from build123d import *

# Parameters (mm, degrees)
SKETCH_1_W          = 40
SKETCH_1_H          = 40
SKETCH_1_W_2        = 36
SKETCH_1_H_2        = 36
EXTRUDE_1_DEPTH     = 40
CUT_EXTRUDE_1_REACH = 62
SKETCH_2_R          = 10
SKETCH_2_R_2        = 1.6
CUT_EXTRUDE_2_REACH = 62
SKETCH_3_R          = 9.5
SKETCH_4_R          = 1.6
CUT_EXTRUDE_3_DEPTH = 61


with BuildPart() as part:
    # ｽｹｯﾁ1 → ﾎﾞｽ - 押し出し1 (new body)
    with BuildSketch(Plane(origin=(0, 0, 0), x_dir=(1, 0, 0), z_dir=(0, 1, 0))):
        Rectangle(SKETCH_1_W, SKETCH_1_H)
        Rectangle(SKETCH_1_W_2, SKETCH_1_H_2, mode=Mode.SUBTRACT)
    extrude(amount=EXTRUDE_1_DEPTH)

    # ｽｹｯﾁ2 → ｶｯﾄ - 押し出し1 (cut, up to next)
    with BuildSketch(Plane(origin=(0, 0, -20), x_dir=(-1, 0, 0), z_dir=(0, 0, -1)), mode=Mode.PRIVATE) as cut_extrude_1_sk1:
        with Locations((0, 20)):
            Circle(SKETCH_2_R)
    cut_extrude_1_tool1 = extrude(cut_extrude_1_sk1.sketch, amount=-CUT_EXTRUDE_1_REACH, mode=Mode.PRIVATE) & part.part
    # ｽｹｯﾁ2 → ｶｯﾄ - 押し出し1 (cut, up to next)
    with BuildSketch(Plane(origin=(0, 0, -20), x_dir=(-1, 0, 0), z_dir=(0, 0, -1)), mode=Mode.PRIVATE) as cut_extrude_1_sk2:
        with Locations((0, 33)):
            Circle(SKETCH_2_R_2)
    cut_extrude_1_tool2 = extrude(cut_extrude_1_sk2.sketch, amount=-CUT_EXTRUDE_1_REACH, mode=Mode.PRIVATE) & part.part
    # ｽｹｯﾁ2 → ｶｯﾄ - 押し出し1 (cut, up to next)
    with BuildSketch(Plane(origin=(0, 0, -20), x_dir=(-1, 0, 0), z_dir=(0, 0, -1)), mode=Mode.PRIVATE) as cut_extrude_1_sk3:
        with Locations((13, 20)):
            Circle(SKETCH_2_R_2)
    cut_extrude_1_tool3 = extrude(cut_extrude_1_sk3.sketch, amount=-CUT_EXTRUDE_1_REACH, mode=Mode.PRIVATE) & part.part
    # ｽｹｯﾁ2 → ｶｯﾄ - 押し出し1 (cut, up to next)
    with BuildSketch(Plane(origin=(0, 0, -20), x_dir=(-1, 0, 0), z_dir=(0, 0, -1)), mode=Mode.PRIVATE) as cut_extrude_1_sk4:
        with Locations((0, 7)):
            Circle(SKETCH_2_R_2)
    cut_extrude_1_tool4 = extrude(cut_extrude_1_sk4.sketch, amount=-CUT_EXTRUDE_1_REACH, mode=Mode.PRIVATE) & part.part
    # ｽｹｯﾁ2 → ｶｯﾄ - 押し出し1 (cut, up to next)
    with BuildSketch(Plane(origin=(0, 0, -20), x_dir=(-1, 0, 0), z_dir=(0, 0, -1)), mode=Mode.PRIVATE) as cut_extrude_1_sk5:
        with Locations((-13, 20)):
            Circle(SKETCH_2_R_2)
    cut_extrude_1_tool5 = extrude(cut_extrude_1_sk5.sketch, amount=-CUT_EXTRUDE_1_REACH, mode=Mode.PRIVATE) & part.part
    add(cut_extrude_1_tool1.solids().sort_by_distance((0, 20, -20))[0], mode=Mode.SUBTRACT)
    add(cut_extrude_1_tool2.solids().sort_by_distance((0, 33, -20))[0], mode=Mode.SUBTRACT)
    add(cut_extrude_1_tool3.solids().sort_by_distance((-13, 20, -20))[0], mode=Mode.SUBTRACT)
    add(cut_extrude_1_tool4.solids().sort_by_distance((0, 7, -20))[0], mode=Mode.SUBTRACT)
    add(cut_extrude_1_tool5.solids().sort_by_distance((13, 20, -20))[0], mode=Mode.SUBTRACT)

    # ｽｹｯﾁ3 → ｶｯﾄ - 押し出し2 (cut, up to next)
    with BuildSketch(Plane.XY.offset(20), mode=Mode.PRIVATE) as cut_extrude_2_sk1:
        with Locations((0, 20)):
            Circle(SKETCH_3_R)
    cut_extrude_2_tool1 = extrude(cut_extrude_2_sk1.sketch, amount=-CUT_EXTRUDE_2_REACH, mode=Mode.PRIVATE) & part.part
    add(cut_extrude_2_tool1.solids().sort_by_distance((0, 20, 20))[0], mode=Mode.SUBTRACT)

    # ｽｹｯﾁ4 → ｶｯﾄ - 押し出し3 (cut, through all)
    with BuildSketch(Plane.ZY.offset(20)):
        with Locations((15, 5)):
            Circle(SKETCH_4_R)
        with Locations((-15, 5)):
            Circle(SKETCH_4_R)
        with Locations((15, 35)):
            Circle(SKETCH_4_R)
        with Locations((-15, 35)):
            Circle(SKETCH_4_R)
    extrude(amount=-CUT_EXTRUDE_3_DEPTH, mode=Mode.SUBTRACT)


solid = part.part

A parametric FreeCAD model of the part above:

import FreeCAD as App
import Part
import Sketcher
Q = App.Units.Quantity


def add_polygon(sketch, points):
    """Adds a closed chain of lines whose ends are joined by coincident constraints."""
    first, n = sketch.GeometryCount, len(points)
    for a, b in zip(points, points[1:] + points[:1]):
        sketch.addGeometry(Part.LineSegment(App.Vector(*a, 0), App.Vector(*b, 0)), False)
    for i in range(n):
        sketch.addConstraint(Sketcher.Constraint("Coincident", first + i, 2, first + (i + 1) % n, 1))

doc = App.newDocument("Part")
body = doc.addObject("PartDesign::Body", "Body")

sketch1 = body.newObject("Sketcher::SketchObject", "Sketch")
sketch1.AttachmentSupport = (doc.getObject("XZ_Plane"), [""])
sketch1.MapMode = "FlatFace"
add_polygon(sketch1, [(-20, -20), (-20, 20), (20, 20), (20, -20)])
add_polygon(sketch1, [(18, 18), (-18, 18), (-18, -18), (18, -18)])
sketch1.addConstraint(Sketcher.Constraint("Vertical", 0))
sketch1.addConstraint(Sketcher.Constraint("Horizontal", 1))
sketch1.addConstraint(Sketcher.Constraint("Vertical", 2))
sketch1.addConstraint(Sketcher.Constraint("Horizontal", 3))
sketch1.addConstraint(Sketcher.Constraint("Horizontal", 4))
sketch1.addConstraint(Sketcher.Constraint("Vertical", 5))
sketch1.addConstraint(Sketcher.Constraint("Horizontal", 6))
sketch1.addConstraint(Sketcher.Constraint("Vertical", 7))
sketch1.addConstraint(Sketcher.Constraint("Symmetric", 0, 2, 2, 2, -1, 1))
sketch1.addConstraint(Sketcher.Constraint("Symmetric", 4, 2, 6, 2, -1, 1))
sketch1.addConstraint(Sketcher.Constraint("Equal", 3, 0))
sketch1.addConstraint(Sketcher.Constraint("Equal", 6, 5))
sketch1.addConstraint(Sketcher.Constraint("DistanceX", 1, 1, 1, 2, Q("40 mm")))
sketch1.addConstraint(Sketcher.Constraint("DistanceX", 4, 2, 4, 1, Q("36 mm")))
pad1 = body.newObject("PartDesign::Pad", "Pad")
pad1.Profile = sketch1
pad1.Length = 40
pad1.Reversed = True

sketch2 = body.newObject("Sketcher::SketchObject", "Sketch001")
sketch2.AttachmentSupport = (doc.getObject("XY_Plane"), [""])
sketch2.MapMode = "FlatFace"
sketch2.AttachmentOffset = App.Placement(App.Vector(0, 0, -20), App.Rotation())
sketch2.addGeometry(Part.Circle(App.Vector(0, 20, 0), App.Vector(0, 0, 1), 10), False)
sketch2.addConstraint(Sketcher.Constraint("PointOnObject", 0, 3, -2))
sketch2.addConstraint(Sketcher.Constraint("Diameter", 0, Q("20 mm")))
sketch2.addConstraint(Sketcher.Constraint("DistanceY", -1, 1, 0, 3, Q("20 mm")))
pocket1 = body.newObject("PartDesign::Pocket", "Pocket")
pocket1.Profile = sketch2
pocket1.Type = "UpToFirst"
pocket1.Reversed = True

sketch3 = body.newObject("Sketcher::SketchObject", "Sketch002")
sketch3.AttachmentSupport = (doc.getObject("XY_Plane"), [""])
sketch3.MapMode = "FlatFace"
sketch3.AttachmentOffset = App.Placement(App.Vector(0, 0, -20), App.Rotation())
sketch3.addGeometry(Part.Circle(App.Vector(0, 33, 0), App.Vector(0, 0, 1), 1.6), False)
sketch3.addConstraint(Sketcher.Constraint("PointOnObject", 0, 3, -2))
sketch3.addConstraint(Sketcher.Constraint("Diameter", 0, Q("3.2 mm")))
sketch3.addConstraint(Sketcher.Constraint("DistanceY", -1, 1, 0, 3, Q("33 mm")))
pocket2 = body.newObject("PartDesign::Pocket", "Pocket001")
pocket2.Profile = sketch3
pocket2.Type = "UpToFirst"
pocket2.Reversed = True

sketch4 = body.newObject("Sketcher::SketchObject", "Sketch003")
sketch4.AttachmentSupport = (doc.getObject("XY_Plane"), [""])
sketch4.MapMode = "FlatFace"
sketch4.AttachmentOffset = App.Placement(App.Vector(0, 0, -20), App.Rotation())
sketch4.addGeometry(Part.Circle(App.Vector(-13, 20, 0), App.Vector(0, 0, 1), 1.6), False)
sketch4.addConstraint(Sketcher.Constraint("Diameter", 0, Q("3.2 mm")))
sketch4.addConstraint(Sketcher.Constraint("DistanceX", 0, 3, -1, 1, Q("13 mm")))
sketch4.addConstraint(Sketcher.Constraint("DistanceY", -1, 1, 0, 3, Q("20 mm")))
pocket3 = body.newObject("PartDesign::Pocket", "Pocket002")
pocket3.Profile = sketch4
pocket3.Type = "UpToFirst"
pocket3.Reversed = True

sketch5 = body.newObject("Sketcher::SketchObject", "Sketch004")
sketch5.AttachmentSupport = (doc.getObject("XY_Plane"), [""])
sketch5.MapMode = "FlatFace"
sketch5.AttachmentOffset = App.Placement(App.Vector(0, 0, -20), App.Rotation())
sketch5.addGeometry(Part.Circle(App.Vector(0, 7, 0), App.Vector(0, 0, 1), 1.6), False)
sketch5.addConstraint(Sketcher.Constraint("PointOnObject", 0, 3, -2))
sketch5.addConstraint(Sketcher.Constraint("Diameter", 0, Q("3.2 mm")))
sketch5.addConstraint(Sketcher.Constraint("DistanceY", -1, 1, 0, 3, Q("7 mm")))
pocket4 = body.newObject("PartDesign::Pocket", "Pocket003")
pocket4.Profile = sketch5
pocket4.Type = "UpToFirst"
pocket4.Reversed = True

sketch6 = body.newObject("Sketcher::SketchObject", "Sketch005")
sketch6.AttachmentSupport = (doc.getObject("XY_Plane"), [""])
sketch6.MapMode = "FlatFace"
sketch6.AttachmentOffset = App.Placement(App.Vector(0, 0, -20), App.Rotation())
sketch6.addGeometry(Part.Circle(App.Vector(13, 20, 0), App.Vector(0, 0, 1), 1.6), False)
sketch6.addConstraint(Sketcher.Constraint("Diameter", 0, Q("3.2 mm")))
sketch6.addConstraint(Sketcher.Constraint("DistanceX", -1, 1, 0, 3, Q("13 mm")))
sketch6.addConstraint(Sketcher.Constraint("DistanceY", -1, 1, 0, 3, Q("20 mm")))
pocket5 = body.newObject("PartDesign::Pocket", "Pocket004")
pocket5.Profile = sketch6
pocket5.Type = "UpToFirst"
pocket5.Reversed = True

sketch7 = body.newObject("Sketcher::SketchObject", "Sketch006")
sketch7.AttachmentSupport = (doc.getObject("XY_Plane"), [""])
sketch7.MapMode = "FlatFace"
sketch7.AttachmentOffset = App.Placement(App.Vector(0, 0, 20), App.Rotation())
sketch7.addGeometry(Part.Circle(App.Vector(0, 20, 0), App.Vector(0, 0, 1), 9.5), False)
sketch7.addConstraint(Sketcher.Constraint("PointOnObject", 0, 3, -2))
sketch7.addConstraint(Sketcher.Constraint("Diameter", 0, Q("19 mm")))
sketch7.addConstraint(Sketcher.Constraint("DistanceY", -1, 1, 0, 3, Q("20 mm")))
pocket6 = body.newObject("PartDesign::Pocket", "Pocket005")
pocket6.Profile = sketch7
pocket6.Type = "UpToFirst"

sketch8 = body.newObject("Sketcher::SketchObject", "Sketch007")
sketch8.AttachmentSupport = (doc.getObject("YZ_Plane"), [""])
sketch8.MapMode = "FlatFace"
sketch8.AttachmentOffset = App.Placement(App.Vector(0, 0, -20), App.Rotation())
sketch8.addGeometry(Part.Circle(App.Vector(5, 15, 0), App.Vector(0, 0, 1), 1.6), False)
sketch8.addGeometry(Part.Circle(App.Vector(5, -15, 0), App.Vector(0, 0, 1), 1.6), False)
sketch8.addGeometry(Part.Circle(App.Vector(35, 15, 0), App.Vector(0, 0, 1), 1.6), False)
sketch8.addGeometry(Part.Circle(App.Vector(35, -15, 0), App.Vector(0, 0, 1), 1.6), False)
sketch8.addConstraint(Sketcher.Constraint("Equal", 0, 1))
sketch8.addConstraint(Sketcher.Constraint("Equal", 1, 2))
sketch8.addConstraint(Sketcher.Constraint("Equal", 2, 3))
sketch8.addConstraint(Sketcher.Constraint("Symmetric", 0, 3, 1, 3, -1))
sketch8.addConstraint(Sketcher.Constraint("Symmetric", 2, 3, 3, 3, -1))
sketch8.addConstraint(Sketcher.Constraint("Horizontal", 0, 3, 2, 3))
sketch8.addConstraint(Sketcher.Constraint("Diameter", 0, Q("3.2 mm")))
sketch8.addConstraint(Sketcher.Constraint("DistanceX", -1, 1, 0, 3, Q("5 mm")))
sketch8.addConstraint(Sketcher.Constraint("DistanceY", -1, 1, 0, 3, Q("15 mm")))
sketch8.addConstraint(Sketcher.Constraint("DistanceX", -1, 1, 2, 3, Q("35 mm")))
pocket7 = body.newObject("PartDesign::Pocket", "Pocket006")
pocket7.Profile = sketch8
pocket7.Type = "ThroughAll"
pocket7.Reversed = True

doc.recompute()
